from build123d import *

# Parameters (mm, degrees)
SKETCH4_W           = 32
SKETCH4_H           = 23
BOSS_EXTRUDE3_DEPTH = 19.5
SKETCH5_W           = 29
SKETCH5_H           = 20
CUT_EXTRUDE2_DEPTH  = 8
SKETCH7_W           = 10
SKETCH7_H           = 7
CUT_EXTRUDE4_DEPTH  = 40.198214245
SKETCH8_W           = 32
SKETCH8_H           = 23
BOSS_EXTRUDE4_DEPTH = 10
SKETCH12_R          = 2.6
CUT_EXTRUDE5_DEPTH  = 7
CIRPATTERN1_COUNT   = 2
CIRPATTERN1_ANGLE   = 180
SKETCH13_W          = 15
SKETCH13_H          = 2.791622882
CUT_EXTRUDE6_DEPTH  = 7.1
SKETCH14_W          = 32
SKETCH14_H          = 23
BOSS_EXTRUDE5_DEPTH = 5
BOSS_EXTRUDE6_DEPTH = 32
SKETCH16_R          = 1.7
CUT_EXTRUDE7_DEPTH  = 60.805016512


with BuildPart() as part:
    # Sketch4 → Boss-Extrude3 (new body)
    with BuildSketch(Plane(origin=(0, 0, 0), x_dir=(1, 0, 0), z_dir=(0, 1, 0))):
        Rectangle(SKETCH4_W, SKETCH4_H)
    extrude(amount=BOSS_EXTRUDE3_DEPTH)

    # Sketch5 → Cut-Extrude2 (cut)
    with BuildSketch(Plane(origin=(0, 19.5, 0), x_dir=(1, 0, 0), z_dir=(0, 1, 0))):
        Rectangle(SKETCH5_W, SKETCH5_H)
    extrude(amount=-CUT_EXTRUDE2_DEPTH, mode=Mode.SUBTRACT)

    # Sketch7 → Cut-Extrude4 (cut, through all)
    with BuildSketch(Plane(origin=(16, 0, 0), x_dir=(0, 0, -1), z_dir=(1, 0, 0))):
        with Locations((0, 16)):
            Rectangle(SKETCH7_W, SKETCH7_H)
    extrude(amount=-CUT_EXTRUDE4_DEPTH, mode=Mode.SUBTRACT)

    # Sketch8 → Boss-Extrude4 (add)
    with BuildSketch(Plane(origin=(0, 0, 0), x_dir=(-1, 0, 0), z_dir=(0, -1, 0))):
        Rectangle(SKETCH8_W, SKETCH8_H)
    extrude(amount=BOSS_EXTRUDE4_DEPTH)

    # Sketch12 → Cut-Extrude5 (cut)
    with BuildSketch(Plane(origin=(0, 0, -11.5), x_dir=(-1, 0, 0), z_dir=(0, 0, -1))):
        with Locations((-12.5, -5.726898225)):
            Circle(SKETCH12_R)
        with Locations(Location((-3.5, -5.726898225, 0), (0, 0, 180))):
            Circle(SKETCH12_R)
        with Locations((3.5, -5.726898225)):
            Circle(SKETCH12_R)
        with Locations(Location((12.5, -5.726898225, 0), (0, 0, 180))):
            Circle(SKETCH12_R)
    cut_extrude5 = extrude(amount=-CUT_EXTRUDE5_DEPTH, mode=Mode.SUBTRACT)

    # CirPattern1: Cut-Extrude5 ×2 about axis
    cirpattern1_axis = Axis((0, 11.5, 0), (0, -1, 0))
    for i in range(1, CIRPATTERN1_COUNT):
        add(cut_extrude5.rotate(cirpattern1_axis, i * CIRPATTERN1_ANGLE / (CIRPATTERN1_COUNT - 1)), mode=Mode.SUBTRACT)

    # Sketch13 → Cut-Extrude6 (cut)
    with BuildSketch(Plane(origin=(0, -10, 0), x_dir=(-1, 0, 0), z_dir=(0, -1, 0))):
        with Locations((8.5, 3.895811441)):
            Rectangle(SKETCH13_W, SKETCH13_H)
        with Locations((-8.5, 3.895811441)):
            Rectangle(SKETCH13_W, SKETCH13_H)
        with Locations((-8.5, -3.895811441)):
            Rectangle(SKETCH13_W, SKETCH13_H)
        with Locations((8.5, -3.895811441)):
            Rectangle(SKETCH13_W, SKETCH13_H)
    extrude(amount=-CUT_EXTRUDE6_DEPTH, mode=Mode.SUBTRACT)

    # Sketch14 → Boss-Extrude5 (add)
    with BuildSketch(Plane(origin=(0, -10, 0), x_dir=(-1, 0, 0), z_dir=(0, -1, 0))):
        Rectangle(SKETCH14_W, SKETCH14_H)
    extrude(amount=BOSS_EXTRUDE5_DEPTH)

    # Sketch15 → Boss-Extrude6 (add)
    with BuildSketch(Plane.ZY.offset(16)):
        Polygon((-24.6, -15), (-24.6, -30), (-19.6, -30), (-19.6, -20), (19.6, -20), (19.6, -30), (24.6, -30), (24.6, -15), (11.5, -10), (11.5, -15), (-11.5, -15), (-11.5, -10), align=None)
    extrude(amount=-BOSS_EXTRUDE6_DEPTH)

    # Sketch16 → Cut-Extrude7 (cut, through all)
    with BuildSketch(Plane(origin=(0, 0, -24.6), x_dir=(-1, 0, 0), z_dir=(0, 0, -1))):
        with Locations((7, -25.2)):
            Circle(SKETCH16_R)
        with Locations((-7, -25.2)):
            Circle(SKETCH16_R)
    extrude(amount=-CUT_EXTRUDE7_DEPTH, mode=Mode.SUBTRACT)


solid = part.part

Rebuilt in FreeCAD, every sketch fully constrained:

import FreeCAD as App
import Part
import Sketcher

V = App.Vector
Q = App.Units.Quantity

doc = App.newDocument("Part")
params = doc.addObject("Spreadsheet::Sheet", "Params")
for row, (alias, value) in enumerate([
    ("sketch1_width", "32 mm"),
    ("sketch1_height", "23 mm"),
    ("pad1_length", "19.5 mm"),
    ("sketch2_width", "29 mm"),
    ("sketch2_height", "20 mm"),
    ("pocket1_length", "8 mm"),
    ("sketch3_width", "7 mm"),
    ("sketch3_height", "10 mm"),
    ("sketch4_width", "32 mm"),
    ("sketch4_height", "23 mm"),
    ("pad2_length", "10 mm"),
    ("sketch5_diameter", "5.2 mm"),
    ("pocket3_length", "7 mm"),
    ("sketch6_width", "15 mm"),
    ("pocket4_length", "7.1 mm"),
    ("sketch7_width", "32 mm"),
    ("sketch7_height", "23 mm"),
    ("pad3_length", "5 mm"),
    ("sketch8_width", "15 mm"),
    ("sketch8_width2", "10 mm"),
    ("sketch8_width3", "5 mm"),
    ("sketch8_height", "23 mm"),
    ("sketch8_height2", "39.2 mm"),
    ("pad4_length", "32 mm"),
    ("sketch9_diameter", "3.4 mm"),
], start=1):
    params.set(f"A{row}", alias)
    params.set(f"B{row}", "=" + value)
    params.setAlias(f"B{row}", alias)

body = doc.addObject("PartDesign::Body", "Body")

sketch1 = body.newObject("Sketcher::SketchObject", "Sketch")
sketch1.AttachmentSupport = (doc.getObject("XZ_Plane"), [""])
sketch1.MapMode = "FlatFace"
sketch1.addGeometry([
    Part.LineSegment(V(-16, -12, 0), V(-16, 12, 0)),
    Part.LineSegment(V(-16, 12, 0), V(16, 12, 0)),
    Part.LineSegment(V(16, 12, 0), V(16, -12, 0)),
    Part.LineSegment(V(16, -12, 0), V(-16, -12, 0)),
], False)
sketch1.addConstraint([
    Sketcher.Constraint("Coincident", 0, 2, 1, 1),
    Sketcher.Constraint("Coincident", 1, 2, 2, 1),
    Sketcher.Constraint("Coincident", 2, 2, 3, 1),
    Sketcher.Constraint("Coincident", 3, 2, 0, 1),
    Sketcher.Constraint("Vertical", 0),
    Sketcher.Constraint("Horizontal", 1),
    Sketcher.Constraint("Vertical", 2),
    Sketcher.Constraint("Horizontal", 3),
    Sketcher.Constraint("Symmetric", 0, 2, 2, 2, -1, 1),
    Sketcher.Constraint("DistanceX", 1, 1, 1, 2, Q("32 mm")),
    Sketcher.Constraint("DistanceY", 0, 1, 0, 2, Q("23 mm")),
])
sketch1.setExpression("Constraints[9]", "Params.sketch1_width")
sketch1.setExpression("Constraints[10]", "Params.sketch1_height")
pad1 = body.newObject("PartDesign::Pad", "Pad")
pad1.Profile = sketch1
pad1.setExpression("Length", "Params.pad1_length")
pad1.Reversed = True

sketch2 = body.newObject("Sketcher::SketchObject", "Sketch001")
sketch2.AttachmentSupport = (doc.getObject("XZ_Plane"), [""])
sketch2.MapMode = "FlatFace"
sketch2.AttachmentOffset = App.Placement(V(0, 0, -19.5), App.Rotation())
sketch2.addGeometry([
    Part.LineSegment(V(-14, -10, 0), V(-14, 10, 0)),
    Part.LineSegment(V(-14, 10, 0), V(14, 10, 0)),
    Part.LineSegment(V(14, 10, 0), V(14, -10, 0)),
    Part.LineSegment(V(14, -10, 0), V(-14, -10, 0)),
], False)
sketch2.addConstraint([
    Sketcher.Constraint("Coincident", 0, 2, 1, 1),
    Sketcher.Constraint("Coincident", 1, 2, 2, 1),
    Sketcher.Constraint("Coincident", 2, 2, 3, 1),
    Sketcher.Constraint("Coincident", 3, 2, 0, 1),
    Sketcher.Constraint("Vertical", 0),
    Sketcher.Constraint("Horizontal", 1),
    Sketcher.Constraint("Vertical", 2),
    Sketcher.Constraint("Horizontal", 3),
    Sketcher.Constraint("Symmetric", 0, 2, 2, 2, -1, 1),
    Sketcher.Constraint("DistanceX", 1, 1, 1, 2, Q("29 mm")),
    Sketcher.Constraint("DistanceY", 0, 1, 0, 2, Q("20 mm")),
])
sketch2.setExpression("Constraints[9]", "Params.sketch2_width")
sketch2.setExpression("Constraints[10]", "Params.sketch2_height")
pocket1 = body.newObject("PartDesign::Pocket", "Pocket")
pocket1.Profile = sketch2
pocket1.setExpression("Length", "Params.pocket1_length")
pocket1.Reversed = True

sketch3 = body.newObject("Sketcher::SketchObject", "Sketch002")
sketch3.AttachmentSupport = (doc.getObject("YZ_Plane"), [""])
sketch3.MapMode = "FlatFace"
sketch3.AttachmentOffset = App.Placement(V(0, 0, 16), App.Rotation())
sketch3.addGeometry([
    Part.LineSegment(V(20, 5, 0), V(12, 5, 0)),
    Part.LineSegment(V(12, 5, 0), V(12, -5, 0)),
    Part.LineSegment(V(12, -5, 0), V(20, -5, 0)),
    Part.LineSegment(V(20, -5, 0), V(20, 5, 0)),
], False)
sketch3.addConstraint([
    Sketcher.Constraint("Coincident", 0, 2, 1, 1),
    Sketcher.Constraint("Coincident", 1, 2, 2, 1),
    Sketcher.Constraint("Coincident", 2, 2, 3, 1),
    Sketcher.Constraint("Coincident", 3, 2, 0, 1),
    Sketcher.Constraint("Horizontal", 0),
    Sketcher.Constraint("Vertical", 1),
    Sketcher.Constraint("Horizontal", 2),
    Sketcher.Constraint("Vertical", 3),
    Sketcher.Constraint("DistanceX", 0, 2, 0, 1, Q("7 mm")),
    Sketcher.Constraint("DistanceY", 1, 2, 1, 1, Q("10 mm")),
    Sketcher.Constraint("DistanceY", -1, 1, 0, 2, Q("5 mm")),
    Sketcher.Constraint("DistanceX", -1, 1, 0, 2, Q("12.5 mm")),
])
sketch3.setExpression("Constraints[8]", "Params.sketch3_width")
sketch3.setExpression("Constraints[9]", "Params.sketch3_height")
pocket2 = body.newObject("PartDesign::Pocket", "Pocket001")
pocket2.Profile = sketch3
pocket2.Type = "ThroughAll"

sketch4 = body.newObject("Sketcher::SketchObject", "Sketch003")
sketch4.AttachmentSupport = (doc.getObject("XZ_Plane"), [""])
sketch4.MapMode = "FlatFace"
sketch4.addGeometry([
    Part.LineSegment(V(16, -12, 0), V(16, 12, 0)),
    Part.LineSegment(V(16, 12, 0), V(-16, 12, 0)),
    Part.LineSegment(V(-16, 12, 0), V(-16, -12, 0)),
    Part.LineSegment(V(-16, -12, 0), V(16, -12, 0)),
], False)
sketch4.addConstraint([
    Sketcher.Constraint("Coincident", 0, 2, 1, 1),
    Sketcher.Constraint("Coincident", 1, 2, 2, 1),
    Sketcher.Constraint("Coincident", 2, 2, 3, 1),
    Sketcher.Constraint("Coincident", 3, 2, 0, 1),
    Sketcher.Constraint("Vertical", 0),
    Sketcher.Constraint("Horizontal", 1),
    Sketcher.Constraint("Vertical", 2),
    Sketcher.Constraint("Horizontal", 3),
    Sketcher.Constraint("Symmetric", 0, 2, 2, 2, -1, 1),
    Sketcher.Constraint("DistanceX", 1, 2, 1, 1, Q("32 mm")),
    Sketcher.Constraint("DistanceY", 0, 1, 0, 2, Q("23 mm")),
])
sketch4.setExpression("Constraints[9]", "Params.sketch4_width")
sketch4.setExpression("Constraints[10]", "Params.sketch4_height")
pad2 = body.newObject("PartDesign::Pad", "Pad001")
pad2.Profile = sketch4
pad2.setExpression("Length", "Params.pad2_length")

sketch5 = body.newObject("Sketcher::SketchObject", "Sketch004")
sketch5.AttachmentSupport = (doc.getObject("XY_Plane"), [""])
sketch5.MapMode = "FlatFace"
sketch5.AttachmentOffset = App.Placement(V(0, 0, -11.5), App.Rotation())
sketch5.addGeometry([
    Part.Circle(V(12.5, -5.7, 0), V(0, 0, 1), 2.6),
    Part.Circle(V(3.5, -5.7, 0), V(0, 0, 1), 2.6),
    Part.Circle(V(-3.5, -5.7, 0), V(0, 0, 1), 2.6),
    Part.Circle(V(-12.5, -5.7, 0), V(0, 0, 1), 2.6),
], False)
sketch5.addConstraint([
    Sketcher.Constraint("Equal", 0, 1),
    Sketcher.Constraint("Equal", 1, 2),
    Sketcher.Constraint("Equal", 2, 3),
    Sketcher.Constraint("Symmetric", 1, 3, 2, 3, -2),
    Sketcher.Constraint("Symmetric", 0, 3, 3, 3, -2),
    Sketcher.Constraint("Horizontal", 0, 3, 1, 3),
    Sketcher.Constraint("Diameter", 0, Q("5.2 mm")),
    Sketcher.Constraint("DistanceX", 1, 3, 0, 3, Q("9 mm")),
    Sketcher.Constraint("DistanceX", 2, 3, 1, 3, Q("7 mm")),
    Sketcher.Constraint("DistanceY", 0, 3, -1, 1, Q("5.726898 mm")),
])
sketch5.setExpression("Constraints[6]", "Params.sketch5_diameter")
pocket3 = body.newObject("PartDesign::Pocket", "Pocket002")
pocket3.Profile = sketch5
pocket3.setExpression("Length", "Params.pocket3_length")
pocket3.Reversed = True
doc.recompute()

polarpattern = body.newObject("PartDesign::PolarPattern", "PolarPattern")
polarpattern.Originals = [pocket3]
polarpattern.Axis = (doc.getObject("Y_Axis"), [""])
polarpattern.Angle = 360
polarpattern.Occurrences = 2
body.Tip = polarpattern

sketch6 = body.newObject("Sketcher::SketchObject", "Sketch005")
sketch6.AttachmentSupport = (doc.getObject("XZ_Plane"), [""])
sketch6.MapMode = "FlatFace"
sketch6.AttachmentOffset = App.Placement(V(0, 0, 10), App.Rotation())
sketch6.addGeometry([
    Part.LineSegment(V(-1, -5.3, 0), V(-1, -2.5, 0)),
    Part.LineSegment(V(-1, -2.5, 0), V(-16, -2.5, 0)),
    Part.LineSegment(V(-16, -2.5, 0), V(-16, -5.3, 0)),
    Part.LineSegment(V(-16, -5.3, 0), V(-1, -5.3, 0)),
    Part.LineSegment(V(16, -5.3, 0), V(16, -2.5, 0)),
    Part.LineSegment(V(16, -2.5, 0), V(1, -2.5, 0)),
    Part.LineSegment(V(1, -2.5, 0), V(1, -5.3, 0)),
    Part.LineSegment(V(1, -5.3, 0), V(16, -5.3, 0)),
    Part.LineSegment(V(16, 2.5, 0), V(16, 5.3, 0)),
    Part.LineSegment(V(16, 5.3, 0), V(1, 5.3, 0)),
    Part.LineSegment(V(1, 5.3, 0), V(1, 2.5, 0)),
    Part.LineSegment(V(1, 2.5, 0), V(16, 2.5, 0)),
    Part.LineSegment(V(-1, 2.5, 0), V(-1, 5.3, 0)),
    Part.LineSegment(V(-1, 5.3, 0), V(-16, 5.3, 0)),
    Part.LineSegment(V(-16, 5.3, 0), V(-16, 2.5, 0)),
    Part.LineSegment(V(-16, 2.5, 0), V(-1, 2.5, 0)),
], False)
sketch6.addConstraint([
    Sketcher.Constraint("Coincident", 0, 2, 1, 1),
    Sketcher.Constraint("Coincident", 1, 2, 2, 1),
    Sketcher.Constraint("Coincident", 2, 2, 3, 1),
    Sketcher.Constraint("Coincident", 3, 2, 0, 1),
    Sketcher.Constraint("Coincident", 4, 2, 5, 1),
    Sketcher.Constraint("Coincident", 5, 2, 6, 1),
    Sketcher.Constraint("Coincident", 6, 2, 7, 1),
    Sketcher.Constraint("Coincident", 7, 2, 4, 1),
    Sketcher.Constraint("Coincident", 8, 2, 9, 1),
    Sketcher.Constraint("Coincident", 9, 2, 10, 1),
    Sketcher.Constraint("Coincident", 10, 2, 11, 1),
    Sketcher.Constraint("Coincident", 11, 2, 8, 1),
    Sketcher.Constraint("Coincident", 12, 2, 13, 1),
    Sketcher.Constraint("Coincident", 13, 2, 14, 1),
    Sketcher.Constraint("Coincident", 14, 2, 15, 1),
    Sketcher.Constraint("Coincident", 15, 2, 12, 1),
    Sketcher.Constraint("Vertical", 0),
    Sketcher.Constraint("Horizontal", 1),
    Sketcher.Constraint("Vertical", 2),
    Sketcher.Constraint("Horizontal", 3),
    Sketcher.Constraint("Vertical", 4),
    Sketcher.Constraint("Horizontal", 5),
    Sketcher.Constraint("Vertical", 6),
    Sketcher.Constraint("Horizontal", 7),
    Sketcher.Constraint("Vertical", 8),
    Sketcher.Constraint("Horizontal", 9),
    Sketcher.Constraint("Vertical", 10),
    Sketcher.Constraint("Horizontal", 11),
    Sketcher.Constraint("Vertical", 12),
    Sketcher.Constraint("Horizontal", 13),
    Sketcher.Constraint("Vertical", 14),
    Sketcher.Constraint("Horizontal", 15),
    Sketcher.Constraint("Symmetric", 2, 2, 8, 2, -1, 1),
    Sketcher.Constraint("Symmetric", 0, 2, 10, 2, -1, 1),
    Sketcher.Constraint("Symmetric", 6, 2, 12, 2, -1, 1),
    Sketcher.Constraint("Symmetric", 4, 2, 14, 2, -1, 1),
    Sketcher.Constraint("Symmetric", 1, 2, 4, 2, -2),
    Sketcher.Constraint("Symmetric", 3, 2, 6, 2, -2),
    Sketcher.Constraint("DistanceX", 1, 2, 1, 1, Q("15 mm")),
    Sketcher.Constraint("DistanceX", 0, 2, -1, 1, Q("1 mm")),
    Sketcher.Constraint("DistanceY", 5, 2, 10, 2, Q("5 mm")),
    Sketcher.Constraint("DistanceY", 0, 1, 0, 2, Q("2.791623 mm")),
])
sketch6.setExpression("Constraints[38]", "Params.sketch6_width")
pocket4 = body.newObject("PartDesign::Pocket", "Pocket003")
pocket4.Profile = sketch6
pocket4.setExpression("Length", "Params.pocket4_length")

sketch7 = body.newObject("Sketcher::SketchObject", "Sketch006")
sketch7.AttachmentSupport = (doc.getObject("XZ_Plane"), [""])
sketch7.MapMode = "FlatFace"
sketch7.AttachmentOffset = App.Placement(V(0, 0, 10), App.Rotation())
sketch7.addGeometry([
    Part.LineSegment(V(16, -12, 0), V(16, 12, 0)),
    Part.LineSegment(V(16, 12, 0), V(-16, 12, 0)),
    Part.LineSegment(V(-16, 12, 0), V(-16, -12, 0)),
    Part.LineSegment(V(-16, -12, 0), V(16, -12, 0)),
], False)
sketch7.addConstraint([
    Sketcher.Constraint("Coincident", 0, 2, 1, 1),
    Sketcher.Constraint("Coincident", 1, 2, 2, 1),
    Sketcher.Constraint("Coincident", 2, 2, 3, 1),
    Sketcher.Constraint("Coincident", 3, 2, 0, 1),
    Sketcher.Constraint("Vertical", 0),
    Sketcher.Constraint("Horizontal", 1),
    Sketcher.Constraint("Vertical", 2),
    Sketcher.Constraint("Horizontal", 3),
    Sketcher.Constraint("Symmetric", 0, 2, 2, 2, -1, 1),
    Sketcher.Constraint("DistanceX", 1, 2, 1, 1, Q("32 mm")),
    Sketcher.Constraint("DistanceY", 0, 1, 0, 2, Q("23 mm")),
])
sketch7.setExpression("Constraints[9]", "Params.sketch7_width")
sketch7.setExpression("Constraints[10]", "Params.sketch7_height")
pad3 = body.newObject("PartDesign::Pad", "Pad002")
pad3.Profile = sketch7
pad3.setExpression("Length", "Params.pad3_length")

sketch8 = body.newObject("Sketcher::SketchObject", "Sketch007")
sketch8.AttachmentSupport = (doc.getObject("YZ_Plane"), [""])
sketch8.MapMode = "FlatFace"
sketch8.AttachmentOffset = App.Placement(V(0, 0, -16), App.Rotation())
sketch8.addGeometry([
    Part.LineSegment(V(-15, -25, 0), V(-30, -25, 0)),
    Part.LineSegment(V(-30, -25, 0), V(-30, -20, 0)),
    Part.LineSegment(V(-30, -20, 0), V(-20, -20, 0)),
    Part.LineSegment(V(-20, -20, 0), V(-20, 20, 0)),
    Part.LineSegment(V(-20, 20, 0), V(-30, 20, 0)),
    Part.LineSegment(V(-30, 20, 0), V(-30, 25, 0)),
    Part.LineSegment(V(-30, 25, 0), V(-15, 25, 0)),
    Part.LineSegment(V(-15, 25, 0), V(-10, 12, 0)),
    Part.LineSegment(V(-10, 12, 0), V(-15, 12, 0)),
    Part.LineSegment(V(-15, 12, 0), V(-15, -12, 0)),
    Part.LineSegment(V(-15, -12, 0), V(-10, -12, 0)),
    Part.LineSegment(V(-10, -12, 0), V(-15, -25, 0)),
], False)
sketch8.addConstraint([
    Sketcher.Constraint("Coincident", 0, 2, 1, 1),
    Sketcher.Constraint("Coincident", 1, 2, 2, 1),
    Sketcher.Constraint("Coincident", 2, 2, 3, 1),
    Sketcher.Constraint("Coincident", 3, 2, 4, 1),
    Sketcher.Constraint("Coincident", 4, 2, 5, 1),
    Sketcher.Constraint("Coincident", 5, 2, 6, 1),
    Sketcher.Constraint("Coincident", 6, 2, 7, 1),
    Sketcher.Constraint("Coincident", 7, 2, 8, 1),
    Sketcher.Constraint("Coincident", 8, 2, 9, 1),
    Sketcher.Constraint("Coincident", 9, 2, 10, 1),
    Sketcher.Constraint("Coincident", 10, 2, 11, 1),
    Sketcher.Constraint("Coincident", 11, 2, 0, 1),
    Sketcher.Constraint("Horizontal", 0),
    Sketcher.Constraint("Vertical", 1),
    Sketcher.Constraint("Horizontal", 2),
    Sketcher.Constraint("Vertical", 3),
    Sketcher.Constraint("Horizontal", 4),
    Sketcher.Constraint("Vertical", 5),
    Sketcher.Constraint("Horizontal", 6),
    Sketcher.Constraint("Horizontal", 8),
    Sketcher.Constraint("Vertical", 9),
    Sketcher.Constraint("Horizontal", 10),
    Sketcher.Constraint("Symmetric", 1, 2, 4, 2, -1),
    Sketcher.Constraint("Symmetric", 7, 2, 10, 2, -1),
    Sketcher.Constraint("Symmetric", 6, 2, 11, 2, -1),
    Sketcher.Constraint("Vertical", 6, 2, 8, 2),
    Sketcher.Constraint("Equal", 10, 1),
    Sketcher.Constraint("DistanceX", 0, 2, 0, 1, Q("15 mm")),
    Sketcher.Constraint("DistanceX", 2, 1, 2, 2, Q("10 mm")),
    Sketcher.Constraint("DistanceX", 8, 2, 8, 1, Q("5 mm")),
    Sketcher.Constraint("DistanceY", 9, 2, 9, 1, Q("23 mm")),
    Sketcher.Constraint("DistanceY", 3, 1, 3, 2, Q("39.2 mm")),
    Sketcher.Constraint("DistanceX", 0, 2, -1, 1, Q("30 mm")),
])
sketch8.setExpression("Constraints[27]", "Params.sketch8_width")
sketch8.setExpression("Constraints[28]", "Params.sketch8_width2")
sketch8.setExpression("Constraints[29]", "Params.sketch8_width3")
sketch8.setExpression("Constraints[30]", "Params.sketch8_height")
sketch8.setExpression("Constraints[31]", "Params.sketch8_height2")
pad4 = body.newObject("PartDesign::Pad", "Pad003")
pad4.Profile = sketch8
pad4.setExpression("Length", "Params.pad4_length")

sketch9 = body.newObject("Sketcher::SketchObject", "Sketch008")
sketch9.AttachmentSupport = (doc.getObject("XY_Plane"), [""])
sketch9.MapMode = "FlatFace"
sketch9.AttachmentOffset = App.Placement(V(0, 0, -24.6), App.Rotation())
sketch9.addGeometry([
    Part.Circle(V(-7, -25.2, 0), V(0, 0, 1), 1.7),
    Part.Circle(V(7, -25.2, 0), V(0, 0, 1), 1.7),
], False)
sketch9.addConstraint([
    Sketcher.Constraint("Equal", 0, 1),
    Sketcher.Constraint("Symmetric", 0, 3, 1, 3, -2),
    Sketcher.Constraint("Diameter", 0, Q("3.4 mm")),
    Sketcher.Constraint("DistanceX", 0, 3, -1, 1, Q("7 mm")),
    Sketcher.Constraint("DistanceY", 0, 3, -1, 1, Q("25.2 mm")),
])
sketch9.setExpression("Constraints[2]", "Params.sketch9_diameter")
pocket5 = body.newObject("PartDesign::Pocket", "Pocket004")
pocket5.Profile = sketch9
pocket5.Type = "ThroughAll"
pocket5.Reversed = True

doc.recompute()
